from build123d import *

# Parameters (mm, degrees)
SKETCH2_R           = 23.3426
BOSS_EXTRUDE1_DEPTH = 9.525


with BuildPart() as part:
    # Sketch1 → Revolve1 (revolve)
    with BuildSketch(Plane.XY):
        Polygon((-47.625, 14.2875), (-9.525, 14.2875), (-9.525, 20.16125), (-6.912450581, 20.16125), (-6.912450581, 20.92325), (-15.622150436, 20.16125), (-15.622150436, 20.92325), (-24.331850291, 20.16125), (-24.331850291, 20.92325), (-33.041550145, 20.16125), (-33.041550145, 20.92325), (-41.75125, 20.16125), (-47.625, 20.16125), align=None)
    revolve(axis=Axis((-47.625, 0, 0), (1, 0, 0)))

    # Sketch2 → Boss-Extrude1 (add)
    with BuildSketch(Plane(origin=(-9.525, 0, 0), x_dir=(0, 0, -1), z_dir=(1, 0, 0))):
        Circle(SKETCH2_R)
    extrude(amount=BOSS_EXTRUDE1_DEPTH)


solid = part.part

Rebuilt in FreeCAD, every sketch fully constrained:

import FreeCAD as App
import Part
import Sketcher
Q = App.Units.Quantity


def add_polygon(sketch, points):
    """Adds a closed chain of lines whose ends are joined by coincident constraints."""
    first, n = sketch.GeometryCount, len(points)
    for a, b in zip(points, points[1:] + points[:1]):
        sketch.addGeometry(Part.LineSegment(App.Vector(*a, 0), App.Vector(*b, 0)), False)
    for i in range(n):
        sketch.addConstraint(Sketcher.Constraint("Coincident", first + i, 2, first + (i + 1) % n, 1))

doc = App.newDocument("Part")
params = doc.addObject("Spreadsheet::Sheet", "Params")
for row, (alias, value) in enumerate([
    ("sketch1_width", "1.5 in"),
    ("sketch1_height", "0.03 in"),
    ("revolution_angle", "360 deg"),
    ("sketch2_diameter", "1.838 in"),
    ("pad1_length", "0.375 in"),
], start=1):
    params.set(f"A{row}", alias)
    params.set(f"B{row}", "=" + value)
    params.setAlias(f"B{row}", alias)

body = doc.addObject("PartDesign::Body", "Body")

# Sketch on XY plane
sketch1 = doc.addObject("Sketcher::SketchObject", "Sketch")
body.addObject(sketch1)
sketch1.AttachmentSupport = (doc.XY_Plane, [""])
sketch1.MapMode = "FlatFace"
add_polygon(sketch1, [(-47.6, 14.3), (-9.5, 14.3), (-9.5, 20.2), (-6.9, 20.2), (-6.9, 20.9), (-15.6, 20.2), (-15.6, 20.9), (-24.3, 20.2), (-24.3, 20.9), (-33, 20.2), (-33, 20.9), (-41.8, 20.2), (-47.6, 20.2)])  # lines 0-12
sketch1.addConstraint([
    Sketcher.Constraint("Horizontal", 0),
    Sketcher.Constraint("Vertical", 1),
    Sketcher.Constraint("Horizontal", 2),
    Sketcher.Constraint("Vertical", 3),
    Sketcher.Constraint("Vertical", 5),
    Sketcher.Constraint("Vertical", 7),
    Sketcher.Constraint("Vertical", 9),
    Sketcher.Constraint("Horizontal", 11),
    Sketcher.Constraint("Vertical", 12),
    Sketcher.Constraint("Parallel", 4, 6),
    Sketcher.Constraint("Parallel", 6, 8),
    Sketcher.Constraint("Parallel", 8, 10),
    Sketcher.Constraint("Horizontal", 2, 2, 4, 2),
    Sketcher.Constraint("Horizontal", 3, 2, 5, 2),
    Sketcher.Constraint("Horizontal", 4, 2, 6, 2),
    Sketcher.Constraint("Horizontal", 5, 2, 7, 2),
    Sketcher.Constraint("Horizontal", 6, 2, 8, 2),
    Sketcher.Constraint("Horizontal", 7, 2, 9, 2),
    Sketcher.Constraint("Horizontal", 8, 2, 10, 2),
    Sketcher.Constraint("Equal", 11, 1),
    Sketcher.Constraint("DistanceX", 0, 1, 0, 2, Q("1.5 in")),
    Sketcher.Constraint("Angle", 4, Q("-175 deg")),
    Sketcher.Constraint("DistanceY", 3, 1, 3, 2, Q("0.03 in")),
    Sketcher.Constraint("DistanceX", 0, 2, -1, 1, Q("0.375 in")),
    Sketcher.Constraint("DistanceY", -1, 1, 0, 2, Q("0.5625 in")),
    Sketcher.Constraint("DistanceX", 2, 1, 2, 2, 2.612549),
])
sketch1.setExpression("Constraints[33]", "Params.sketch1_width")
sketch1.setExpression("Constraints[35]", "Params.sketch1_height")
revolution = doc.addObject("PartDesign::Revolution", "Revolution")
body.addObject(revolution)
revolution.Profile = sketch1
revolution.ReferenceAxis = (sketch1, ["H_Axis"])
revolution.setExpression("Angle", "Params.revolution_angle")

# Sketch on YZ plane
sketch2 = doc.addObject("Sketcher::SketchObject", "Sketch001")
body.addObject(sketch2)
sketch2.AttachmentSupport = (doc.YZ_Plane, [""])
sketch2.MapMode = "FlatFace"
sketch2.AttachmentOffset = App.Placement(App.Vector(0, 0, -0.375 * 25.4), App.Rotation())
sketch2.addGeometry(Part.Circle(App.Vector(0, 0, 0), App.Vector(0, 0, 1), 23), False)
sketch2.addConstraint([
    Sketcher.Constraint("Coincident", 0, 3, -1, 1),
    Sketcher.Constraint("Diameter", 0, Q("1.838 in")),
])
sketch2.setExpression("Constraints[1]", "Params.sketch2_diameter")
pad1 = doc.addObject("PartDesign::Pad", "Pad")
body.addObject(pad1)
pad1.Profile = sketch2
pad1.setExpression("Length", "Params.pad1_length")

doc.recompute()
